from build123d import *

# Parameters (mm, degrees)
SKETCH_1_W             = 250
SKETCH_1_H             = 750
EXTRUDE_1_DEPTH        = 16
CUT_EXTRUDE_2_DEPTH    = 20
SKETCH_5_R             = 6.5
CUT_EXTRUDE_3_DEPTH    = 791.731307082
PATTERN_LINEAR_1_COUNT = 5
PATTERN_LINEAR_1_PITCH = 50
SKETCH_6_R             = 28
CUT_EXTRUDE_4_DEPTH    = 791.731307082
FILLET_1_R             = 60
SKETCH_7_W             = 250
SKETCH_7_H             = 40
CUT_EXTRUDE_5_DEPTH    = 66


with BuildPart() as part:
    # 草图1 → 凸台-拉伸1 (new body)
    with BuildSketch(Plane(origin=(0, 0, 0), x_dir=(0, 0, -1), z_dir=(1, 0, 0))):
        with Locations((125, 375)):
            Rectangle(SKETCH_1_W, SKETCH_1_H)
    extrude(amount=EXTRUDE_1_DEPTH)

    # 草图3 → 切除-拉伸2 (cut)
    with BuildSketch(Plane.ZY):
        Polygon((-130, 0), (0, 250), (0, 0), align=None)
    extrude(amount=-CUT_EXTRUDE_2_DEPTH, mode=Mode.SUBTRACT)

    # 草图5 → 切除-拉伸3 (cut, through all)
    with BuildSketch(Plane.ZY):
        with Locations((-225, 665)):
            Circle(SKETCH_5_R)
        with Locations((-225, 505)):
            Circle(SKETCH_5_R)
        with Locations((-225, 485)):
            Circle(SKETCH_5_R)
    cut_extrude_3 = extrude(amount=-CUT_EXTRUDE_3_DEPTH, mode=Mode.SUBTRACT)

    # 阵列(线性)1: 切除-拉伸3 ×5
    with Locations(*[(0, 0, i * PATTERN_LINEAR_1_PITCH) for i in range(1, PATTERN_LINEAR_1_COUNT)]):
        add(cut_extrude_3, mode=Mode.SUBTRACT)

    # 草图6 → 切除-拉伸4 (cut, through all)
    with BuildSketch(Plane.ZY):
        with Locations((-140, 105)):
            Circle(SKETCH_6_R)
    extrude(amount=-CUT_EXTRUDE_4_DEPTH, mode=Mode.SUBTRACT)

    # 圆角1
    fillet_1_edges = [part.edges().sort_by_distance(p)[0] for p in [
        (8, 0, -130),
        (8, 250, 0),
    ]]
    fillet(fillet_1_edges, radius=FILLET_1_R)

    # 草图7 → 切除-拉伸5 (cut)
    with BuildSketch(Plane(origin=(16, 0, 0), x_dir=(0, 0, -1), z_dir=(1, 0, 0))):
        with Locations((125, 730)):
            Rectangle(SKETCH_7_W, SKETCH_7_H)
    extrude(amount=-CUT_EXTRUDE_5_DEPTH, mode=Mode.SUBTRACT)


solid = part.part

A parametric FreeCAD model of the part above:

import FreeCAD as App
import Part
import Sketcher

V = App.Vector


def edges_at(feature, points):
    """Names of the edges that pass closest to the given points."""
    edges = feature.Shape.Edges
    near = lambda p: min(range(len(edges)), key=lambda i: edges[i].distToShape(Part.Vertex(*p))[0])
    return sorted({f"Edge{near(p) + 1}" for p in points})

doc = App.newDocument("Part")
params = doc.addObject("Spreadsheet::Sheet", "Params")
for row, (alias, value) in enumerate([
    ("sketch1_width", "750 mm"),
    ("sketch1_height", "250 mm"),
    ("pad1_length", "16 mm"),
    ("sketch2_width", "250 mm"),
    ("sketch2_height", "130 mm"),
    ("pocket1_length", "20 mm"),
    ("sketch3_diameter", "13 mm"),
    ("linearpattern_pitch", "50 mm"),
    ("sketch4_diameter", "56 mm"),
    ("fillet_radius", "60 mm"),
    ("sketch5_width", "40 mm"),
    ("sketch5_height", "250 mm"),
    ("pocket4_length", "66 mm"),
], start=1):
    params.set(f"A{row}", alias)
    params.set(f"B{row}", "=" + value)
    params.setAlias(f"B{row}", alias)

body = doc.addObject("PartDesign::Body", "Body")

# Sketch on YZ plane
sketch1 = body.newObject("Sketcher::SketchObject", "Sketch")
sketch1.AttachmentSupport = (doc.getObject("YZ_Plane"), [""])
sketch1.MapMode = "FlatFace"
sketch1.addGeometry(Part.LineSegment(V(750, 0, 0), V(0, 0, 0)), False)
sketch1.addGeometry(Part.LineSegment(V(0, 0, 0), V(0, -250, 0)), False)
sketch1.addGeometry(Part.LineSegment(V(0, -250, 0), V(750, -250, 0)), False)
sketch1.addGeometry(Part.LineSegment(V(750, -250, 0), V(750, 0, 0)), False)
sketch1.addConstraint(Sketcher.Constraint("Coincident", 0, 2, 1, 1))
sketch1.addConstraint(Sketcher.Constraint("Coincident", 1, 2, 2, 1))
sketch1.addConstraint(Sketcher.Constraint("Coincident", 2, 2, 3, 1))
sketch1.addConstraint(Sketcher.Constraint("Coincident", 3, 2, 0, 1))
sketch1.addConstraint(Sketcher.Constraint("Horizontal", 0))
sketch1.addConstraint(Sketcher.Constraint("Vertical", 1))
sketch1.addConstraint(Sketcher.Constraint("Horizontal", 2))
sketch1.addConstraint(Sketcher.Constraint("Vertical", 3))
sketch1.addConstraint(Sketcher.Constraint("Coincident", 0, 2, -1, 1))
sketch1.addConstraint(Sketcher.Constraint("DistanceX", 0, 2, 0, 1, 750.0))
sketch1.addConstraint(Sketcher.Constraint("DistanceY", 1, 2, 1, 1, 250.0))
sketch1.setExpression("Constraints[9]", "Params.sketch1_width")
sketch1.setExpression("Constraints[10]", "Params.sketch1_height")
pad1 = body.newObject("PartDesign::Pad", "Pad")
pad1.Profile = sketch1
pad1.setExpression("Length", "Params.pad1_length")

# Sketch on YZ plane
sketch2 = body.newObject("Sketcher::SketchObject", "Sketch001")
sketch2.AttachmentSupport = (doc.getObject("YZ_Plane"), [""])
sketch2.MapMode = "FlatFace"
sketch2.addGeometry(Part.LineSegment(V(250, 0, 0), V(0, -130, 0)), False)
sketch2.addGeometry(Part.LineSegment(V(0, -130, 0), V(0, 0, 0)), False)
sketch2.addGeometry(Part.LineSegment(V(0, 0, 0), V(250, 0, 0)), False)
sketch2.addConstraint(Sketcher.Constraint("Coincident", 0, 2, 1, 1))
sketch2.addConstraint(Sketcher.Constraint("Coincident", 1, 2, 2, 1))
sketch2.addConstraint(Sketcher.Constraint("Coincident", 2, 2, 0, 1))
sketch2.addConstraint(Sketcher.Constraint("Vertical", 1))
sketch2.addConstraint(Sketcher.Constraint("Horizontal", 2))
sketch2.addConstraint(Sketcher.Constraint("Coincident", 1, 2, -1, 1))
sketch2.addConstraint(Sketcher.Constraint("DistanceX", 2, 1, 2, 2, 250.0))
sketch2.addConstraint(Sketcher.Constraint("DistanceY", 1, 1, 1, 2, 130.0))
sketch2.setExpression("Constraints[6]", "Params.sketch2_width")
sketch2.setExpression("Constraints[7]", "Params.sketch2_height")
pocket1 = body.newObject("PartDesign::Pocket", "Pocket")
pocket1.Profile = sketch2
pocket1.setExpression("Length", "Params.pocket1_length")
pocket1.Reversed = True

# Sketch on YZ plane
sketch3 = body.newObject("Sketcher::SketchObject", "Sketch002")
sketch3.AttachmentSupport = (doc.getObject("YZ_Plane"), [""])
sketch3.MapMode = "FlatFace"
sketch3.addGeometry(Part.Circle(V(665, -225, 0), V(0, 0, 1), 6), False)
sketch3.addGeometry(Part.Circle(V(505, -225, 0), V(0, 0, 1), 6), False)
sketch3.addGeometry(Part.Circle(V(485, -225, 0), V(0, 0, 1), 6), False)
sketch3.addConstraint(Sketcher.Constraint("Equal", 0, 1))
sketch3.addConstraint(Sketcher.Constraint("Equal", 1, 2))
sketch3.addConstraint(Sketcher.Constraint("Horizontal", 0, 3, 1, 3))
sketch3.addConstraint(Sketcher.Constraint("Horizontal", 1, 3, 2, 3))
sketch3.addConstraint(Sketcher.Constraint("Diameter", 0, 13.0))
sketch3.addConstraint(Sketcher.Constraint("DistanceX", -1, 1, 0, 3, 665.0))
sketch3.addConstraint(Sketcher.Constraint("DistanceY", 0, 3, -1, 1, 225.0))
sketch3.addConstraint(Sketcher.Constraint("DistanceX", -1, 1, 1, 3, 505.0))
sketch3.addConstraint(Sketcher.Constraint("DistanceX", -1, 1, 2, 3, 485.0))
sketch3.setExpression("Constraints[4]", "Params.sketch3_diameter")
pocket2 = body.newObject("PartDesign::Pocket", "Pocket001")
pocket2.Profile = sketch3
pocket2.Type = "ThroughAll"
pocket2.Reversed = True
doc.recompute()

linearpattern = body.newObject("PartDesign::LinearPattern", "LinearPattern")
linearpattern.Originals = [pocket2]
linearpattern.Direction = (doc.getObject("Z_Axis"), [""])
linearpattern.Mode = "offset"
linearpattern.setExpression("Offset", "Params.linearpattern_pitch")
linearpattern.Occurrences = 5
body.Tip = linearpattern

# Sketch on YZ plane
sketch4 = body.newObject("Sketcher::SketchObject", "Sketch003")
sketch4.AttachmentSupport = (doc.getObject("YZ_Plane"), [""])
sketch4.MapMode = "FlatFace"
sketch4.addGeometry(Part.Circle(V(105, -140, 0), V(0, 0, 1), 28), False)
sketch4.addConstraint(Sketcher.Constraint("Diameter", 0, 56.0))
sketch4.addConstraint(Sketcher.Constraint("DistanceX", -1, 1, 0, 3, 105.0))
sketch4.addConstraint(Sketcher.Constraint("DistanceY", 0, 3, -1, 1, 140.0))
sketch4.setExpression("Constraints[0]", "Params.sketch4_diameter")
pocket3 = body.newObject("PartDesign::Pocket", "Pocket002")
pocket3.Profile = sketch4
pocket3.Type = "ThroughAll"
pocket3.Reversed = True
doc.recompute()

fillet = body.newObject("PartDesign::Fillet", "Fillet")
fillet.Base = (pocket3, edges_at(pocket3, [(8, 0, -130), (8, 250, 0)]))
fillet.setExpression("Radius", "Params.fillet_radius")

# Sketch on YZ plane
sketch5 = body.newObject("Sketcher::SketchObject", "Sketch004")
sketch5.AttachmentSupport = (doc.getObject("YZ_Plane"), [""])
sketch5.MapMode = "FlatFace"
sketch5.AttachmentOffset = App.Placement(V(0, 0, 16), App.Rotation())
sketch5.addGeometry(Part.LineSegment(V(750, 0, 0), V(710, 0, 0)), False)
sketch5.addGeometry(Part.LineSegment(V(710, 0, 0), V(710, -250, 0)), False)
sketch5.addGeometry(Part.LineSegment(V(710, -250, 0), V(750, -250, 0)), False)
sketch5.addGeometry(Part.LineSegment(V(750, -250, 0), V(750, 0, 0)), False)
sketch5.addConstraint(Sketcher.Constraint("Coincident", 0, 2, 1, 1))
sketch5.addConstraint(Sketcher.Constraint("Coincident", 1, 2, 2, 1))
sketch5.addConstraint(Sketcher.Constraint("Coincident", 2, 2, 3, 1))
sketch5.addConstraint(Sketcher.Constraint("Coincident", 3, 2, 0, 1))
sketch5.addConstraint(Sketcher.Constraint("Horizontal", 0))
sketch5.addConstraint(Sketcher.Constraint("Vertical", 1))
sketch5.addConstraint(Sketcher.Constraint("Horizontal", 2))
sketch5.addConstraint(Sketcher.Constraint("Vertical", 3))
sketch5.addConstraint(Sketcher.Constraint("PointOnObject", 0, 2, -1))
sketch5.addConstraint(Sketcher.Constraint("DistanceX", 0, 2, 0, 1, 40.0))
sketch5.addConstraint(Sketcher.Constraint("DistanceY", 1, 2, 1, 1, 250.0))
sketch5.addConstraint(Sketcher.Constraint("DistanceX", -1, 1, 0, 2, 710.0))
sketch5.setExpression("Constraints[9]", "Params.sketch5_width")
sketch5.setExpression("Constraints[10]", "Params.sketch5_height")
pocket4 = body.newObject("PartDesign::Pocket", "Pocket003")
pocket4.Profile = sketch5
pocket4.setExpression("Length", "Params.pocket4_length")

doc.recompute()
